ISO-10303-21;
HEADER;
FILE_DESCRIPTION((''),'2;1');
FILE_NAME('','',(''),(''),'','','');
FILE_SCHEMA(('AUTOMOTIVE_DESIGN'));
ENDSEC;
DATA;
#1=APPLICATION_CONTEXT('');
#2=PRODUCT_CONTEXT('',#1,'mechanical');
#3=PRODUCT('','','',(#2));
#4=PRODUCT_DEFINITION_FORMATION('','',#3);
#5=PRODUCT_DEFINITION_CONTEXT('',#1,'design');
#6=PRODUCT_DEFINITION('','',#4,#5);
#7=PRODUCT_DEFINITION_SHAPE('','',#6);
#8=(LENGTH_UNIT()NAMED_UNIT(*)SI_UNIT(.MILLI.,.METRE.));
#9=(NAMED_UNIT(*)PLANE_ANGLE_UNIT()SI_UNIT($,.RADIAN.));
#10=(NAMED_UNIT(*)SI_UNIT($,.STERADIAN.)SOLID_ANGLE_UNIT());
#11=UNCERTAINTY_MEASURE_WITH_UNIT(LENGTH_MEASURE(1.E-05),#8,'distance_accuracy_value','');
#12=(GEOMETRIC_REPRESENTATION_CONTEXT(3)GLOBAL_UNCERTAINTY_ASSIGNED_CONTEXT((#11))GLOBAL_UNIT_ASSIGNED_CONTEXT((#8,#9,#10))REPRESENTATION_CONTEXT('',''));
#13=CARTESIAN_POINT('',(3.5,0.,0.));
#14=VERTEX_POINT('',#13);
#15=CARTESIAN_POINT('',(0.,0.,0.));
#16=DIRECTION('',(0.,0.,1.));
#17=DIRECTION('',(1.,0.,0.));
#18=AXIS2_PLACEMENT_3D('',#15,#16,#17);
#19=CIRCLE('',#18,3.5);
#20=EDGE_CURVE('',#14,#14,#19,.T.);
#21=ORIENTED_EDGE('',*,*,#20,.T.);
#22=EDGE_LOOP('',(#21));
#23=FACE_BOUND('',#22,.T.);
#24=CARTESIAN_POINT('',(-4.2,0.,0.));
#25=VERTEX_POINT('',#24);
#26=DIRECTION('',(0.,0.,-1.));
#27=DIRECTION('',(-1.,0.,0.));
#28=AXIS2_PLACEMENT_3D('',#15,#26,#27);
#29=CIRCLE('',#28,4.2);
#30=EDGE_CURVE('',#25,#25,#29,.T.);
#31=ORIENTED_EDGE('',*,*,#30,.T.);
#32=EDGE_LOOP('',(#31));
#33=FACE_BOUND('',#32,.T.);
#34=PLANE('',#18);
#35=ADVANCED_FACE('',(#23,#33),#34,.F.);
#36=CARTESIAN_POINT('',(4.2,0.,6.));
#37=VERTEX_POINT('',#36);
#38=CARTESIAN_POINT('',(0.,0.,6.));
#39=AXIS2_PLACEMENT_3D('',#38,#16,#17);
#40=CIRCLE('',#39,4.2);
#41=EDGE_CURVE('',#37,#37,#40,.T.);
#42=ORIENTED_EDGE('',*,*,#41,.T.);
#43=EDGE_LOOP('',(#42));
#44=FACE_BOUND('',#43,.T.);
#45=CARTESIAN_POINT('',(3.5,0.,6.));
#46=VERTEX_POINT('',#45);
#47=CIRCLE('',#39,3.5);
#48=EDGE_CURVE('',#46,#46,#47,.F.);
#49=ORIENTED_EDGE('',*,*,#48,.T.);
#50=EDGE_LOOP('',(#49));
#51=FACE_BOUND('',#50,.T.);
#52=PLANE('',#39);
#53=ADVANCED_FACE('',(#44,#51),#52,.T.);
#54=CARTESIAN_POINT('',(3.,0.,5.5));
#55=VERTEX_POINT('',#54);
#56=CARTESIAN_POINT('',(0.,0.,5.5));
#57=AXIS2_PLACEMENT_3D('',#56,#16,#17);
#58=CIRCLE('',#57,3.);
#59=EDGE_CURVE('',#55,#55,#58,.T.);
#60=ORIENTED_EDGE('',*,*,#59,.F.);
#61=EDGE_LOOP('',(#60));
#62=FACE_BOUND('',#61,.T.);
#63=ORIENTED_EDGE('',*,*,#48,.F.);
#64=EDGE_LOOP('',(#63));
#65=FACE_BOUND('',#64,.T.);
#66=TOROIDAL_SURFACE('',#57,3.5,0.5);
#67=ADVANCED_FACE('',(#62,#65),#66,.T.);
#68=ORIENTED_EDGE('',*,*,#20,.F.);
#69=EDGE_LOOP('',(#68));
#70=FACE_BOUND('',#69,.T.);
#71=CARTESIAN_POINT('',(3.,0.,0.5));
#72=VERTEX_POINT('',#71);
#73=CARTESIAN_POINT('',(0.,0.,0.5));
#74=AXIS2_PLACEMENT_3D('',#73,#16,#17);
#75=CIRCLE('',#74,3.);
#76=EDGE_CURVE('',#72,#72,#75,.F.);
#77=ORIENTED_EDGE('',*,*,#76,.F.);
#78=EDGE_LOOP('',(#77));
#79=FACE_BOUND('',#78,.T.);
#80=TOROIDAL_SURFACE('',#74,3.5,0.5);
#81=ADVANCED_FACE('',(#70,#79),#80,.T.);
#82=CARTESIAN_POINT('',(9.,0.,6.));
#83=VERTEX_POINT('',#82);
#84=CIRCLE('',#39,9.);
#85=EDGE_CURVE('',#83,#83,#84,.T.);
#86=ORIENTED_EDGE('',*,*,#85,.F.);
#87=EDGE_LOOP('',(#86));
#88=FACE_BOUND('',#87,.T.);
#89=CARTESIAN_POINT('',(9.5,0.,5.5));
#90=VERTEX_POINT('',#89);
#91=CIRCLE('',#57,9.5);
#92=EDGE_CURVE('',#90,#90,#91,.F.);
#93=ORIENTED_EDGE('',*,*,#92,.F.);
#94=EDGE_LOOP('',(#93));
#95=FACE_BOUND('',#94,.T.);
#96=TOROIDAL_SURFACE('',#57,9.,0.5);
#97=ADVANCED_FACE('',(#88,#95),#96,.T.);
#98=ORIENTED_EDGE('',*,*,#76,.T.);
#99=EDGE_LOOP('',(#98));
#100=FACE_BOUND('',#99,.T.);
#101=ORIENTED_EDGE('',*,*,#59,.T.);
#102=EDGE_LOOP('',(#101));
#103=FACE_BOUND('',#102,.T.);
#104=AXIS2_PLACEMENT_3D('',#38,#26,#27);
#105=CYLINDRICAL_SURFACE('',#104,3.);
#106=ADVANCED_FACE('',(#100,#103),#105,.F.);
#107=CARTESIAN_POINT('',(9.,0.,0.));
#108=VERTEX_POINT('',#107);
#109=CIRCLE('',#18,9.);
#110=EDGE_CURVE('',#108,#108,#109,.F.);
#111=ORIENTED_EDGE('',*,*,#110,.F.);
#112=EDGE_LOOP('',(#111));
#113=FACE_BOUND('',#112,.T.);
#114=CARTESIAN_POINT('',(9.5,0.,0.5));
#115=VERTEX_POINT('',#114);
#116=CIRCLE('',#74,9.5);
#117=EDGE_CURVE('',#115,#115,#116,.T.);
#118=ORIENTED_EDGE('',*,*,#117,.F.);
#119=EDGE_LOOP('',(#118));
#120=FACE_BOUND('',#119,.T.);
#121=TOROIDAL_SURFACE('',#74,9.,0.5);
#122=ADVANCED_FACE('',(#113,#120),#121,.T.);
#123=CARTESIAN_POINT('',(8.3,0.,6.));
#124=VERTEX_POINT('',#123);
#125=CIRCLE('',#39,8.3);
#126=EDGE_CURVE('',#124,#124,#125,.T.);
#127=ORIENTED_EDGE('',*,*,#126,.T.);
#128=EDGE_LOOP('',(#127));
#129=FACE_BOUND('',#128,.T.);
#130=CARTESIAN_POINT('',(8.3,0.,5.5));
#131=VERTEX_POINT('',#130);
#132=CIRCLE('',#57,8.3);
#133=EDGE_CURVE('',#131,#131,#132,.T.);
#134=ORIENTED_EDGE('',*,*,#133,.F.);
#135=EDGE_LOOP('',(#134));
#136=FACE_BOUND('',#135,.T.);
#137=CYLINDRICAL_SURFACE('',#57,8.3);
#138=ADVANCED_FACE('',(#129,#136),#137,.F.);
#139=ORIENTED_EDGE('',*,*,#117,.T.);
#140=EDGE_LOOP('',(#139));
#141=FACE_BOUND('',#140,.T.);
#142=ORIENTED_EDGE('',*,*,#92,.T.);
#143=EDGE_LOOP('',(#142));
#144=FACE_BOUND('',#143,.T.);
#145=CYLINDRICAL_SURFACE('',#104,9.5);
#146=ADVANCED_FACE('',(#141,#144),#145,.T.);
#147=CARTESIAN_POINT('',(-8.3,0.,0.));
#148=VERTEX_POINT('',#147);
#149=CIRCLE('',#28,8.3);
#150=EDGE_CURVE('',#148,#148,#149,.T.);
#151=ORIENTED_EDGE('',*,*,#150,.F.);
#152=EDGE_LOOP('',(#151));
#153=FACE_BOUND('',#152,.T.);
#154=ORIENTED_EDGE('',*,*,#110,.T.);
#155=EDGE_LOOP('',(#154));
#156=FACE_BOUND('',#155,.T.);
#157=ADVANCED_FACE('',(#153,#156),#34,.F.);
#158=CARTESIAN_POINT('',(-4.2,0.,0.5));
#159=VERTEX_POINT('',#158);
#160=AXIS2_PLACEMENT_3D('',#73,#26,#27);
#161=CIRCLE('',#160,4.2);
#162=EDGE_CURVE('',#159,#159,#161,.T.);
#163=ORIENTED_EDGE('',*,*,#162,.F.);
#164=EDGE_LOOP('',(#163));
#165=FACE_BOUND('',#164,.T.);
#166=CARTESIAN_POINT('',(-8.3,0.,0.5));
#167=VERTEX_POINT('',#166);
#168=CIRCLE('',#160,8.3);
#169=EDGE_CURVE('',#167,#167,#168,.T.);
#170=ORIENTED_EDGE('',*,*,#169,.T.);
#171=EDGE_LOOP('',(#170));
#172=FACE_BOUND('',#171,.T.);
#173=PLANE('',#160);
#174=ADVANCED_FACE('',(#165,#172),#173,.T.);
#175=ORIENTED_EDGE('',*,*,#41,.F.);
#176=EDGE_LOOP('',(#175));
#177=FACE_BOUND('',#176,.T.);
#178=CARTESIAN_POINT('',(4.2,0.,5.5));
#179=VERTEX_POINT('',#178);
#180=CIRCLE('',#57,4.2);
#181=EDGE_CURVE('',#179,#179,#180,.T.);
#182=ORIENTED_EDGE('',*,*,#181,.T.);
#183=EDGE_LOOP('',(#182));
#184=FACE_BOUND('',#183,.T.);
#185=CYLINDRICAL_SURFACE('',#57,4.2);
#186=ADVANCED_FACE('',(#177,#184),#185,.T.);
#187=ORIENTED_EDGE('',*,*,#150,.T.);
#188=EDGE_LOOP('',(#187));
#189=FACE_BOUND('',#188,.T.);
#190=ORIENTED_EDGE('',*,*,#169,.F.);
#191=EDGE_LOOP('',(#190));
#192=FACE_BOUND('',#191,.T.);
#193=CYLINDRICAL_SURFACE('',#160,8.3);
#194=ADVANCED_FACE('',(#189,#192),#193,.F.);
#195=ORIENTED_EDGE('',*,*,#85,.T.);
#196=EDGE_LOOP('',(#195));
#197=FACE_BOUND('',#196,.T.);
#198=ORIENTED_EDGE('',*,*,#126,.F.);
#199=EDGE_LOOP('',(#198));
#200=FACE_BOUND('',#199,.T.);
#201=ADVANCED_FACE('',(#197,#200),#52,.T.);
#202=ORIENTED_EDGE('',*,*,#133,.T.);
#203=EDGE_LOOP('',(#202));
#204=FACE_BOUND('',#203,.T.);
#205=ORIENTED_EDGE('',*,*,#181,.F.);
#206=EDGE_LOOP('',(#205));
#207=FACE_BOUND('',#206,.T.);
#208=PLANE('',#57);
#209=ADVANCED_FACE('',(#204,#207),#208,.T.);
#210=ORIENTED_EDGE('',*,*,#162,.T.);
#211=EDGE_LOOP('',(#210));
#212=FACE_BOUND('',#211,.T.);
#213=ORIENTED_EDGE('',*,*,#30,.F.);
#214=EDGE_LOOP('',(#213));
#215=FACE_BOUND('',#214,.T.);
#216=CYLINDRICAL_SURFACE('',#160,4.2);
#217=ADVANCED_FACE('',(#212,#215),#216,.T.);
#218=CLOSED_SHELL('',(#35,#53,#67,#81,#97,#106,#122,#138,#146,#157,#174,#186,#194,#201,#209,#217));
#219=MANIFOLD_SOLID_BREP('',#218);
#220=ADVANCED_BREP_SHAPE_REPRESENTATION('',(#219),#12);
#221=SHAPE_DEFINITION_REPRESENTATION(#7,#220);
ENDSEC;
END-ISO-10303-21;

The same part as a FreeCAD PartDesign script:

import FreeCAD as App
import Part
import Sketcher

V = App.Vector


def edges_at(feature, points):
    """Names of the edges that pass closest to the given points."""
    edges = feature.Shape.Edges
    near = lambda p: min(range(len(edges)), key=lambda i: edges[i].distToShape(Part.Vertex(*p))[0])
    return sorted({f"Edge{near(p) + 1}" for p in points})

doc = App.newDocument("Part")
body = doc.addObject("PartDesign::Body", "Body")

# Sketch on XY plane
sketch1 = body.newObject("Sketcher::SketchObject", "Sketch")
sketch1.AttachmentSupport = (doc.getObject("XY_Plane"), [""])
sketch1.MapMode = "FlatFace"
sketch1.addGeometry([
    Part.Circle(V(0, 0, 0), V(0, 0, 1), 9.5),
    Part.Circle(V(0, 0, 0), V(0, 0, 1), 3),
], False)
sketch1.addConstraint([
    Sketcher.Constraint("Coincident", 0, 3, -1, 1),
    Sketcher.Constraint("Coincident", 1, 3, -1, 1),
    Sketcher.Constraint("Diameter", 0, 19.0),
    Sketcher.Constraint("Diameter", 1, 6.0),
])
pad1 = body.newObject("PartDesign::Pad", "Pad")
pad1.Profile = sketch1
pad1.Length = 6

# Sketch on XY plane
sketch2 = body.newObject("Sketcher::SketchObject", "Sketch001")
sketch2.AttachmentSupport = (doc.getObject("XY_Plane"), [""])
sketch2.MapMode = "FlatFace"
sketch2.AttachmentOffset = App.Placement(V(0, 0, 6), App.Rotation())
sketch2.addGeometry([
    Part.Circle(V(0, 0, 0), V(0, 0, 1), 8.3),
    Part.Circle(V(0, 0, 0), V(0, 0, 1), 4.2),
], False)
sketch2.addConstraint([
    Sketcher.Constraint("Coincident", 0, 3, -1, 1),
    Sketcher.Constraint("Coincident", 1, 3, -1, 1),
    Sketcher.Constraint("Diameter", 0, 16.6),
    Sketcher.Constraint("Diameter", 1, 8.4),
])
pocket1 = body.newObject("PartDesign::Pocket", "Pocket")
pocket1.Profile = sketch2
pocket1.Length = 0.5

# Sketch on XY plane
sketch3 = body.newObject("Sketcher::SketchObject", "Sketch002")
sketch3.AttachmentSupport = (doc.getObject("XY_Plane"), [""])
sketch3.MapMode = "FlatFace"
sketch3.AttachmentOffset = App.Placement(V(0, 0, 0.5), App.Rotation())
sketch3.addGeometry([
    Part.Circle(V(0, 0, 0), V(0, 0, 1), 8.3),
    Part.Circle(V(0, 0, 0), V(0, 0, 1), 4.2),
], False)
sketch3.addConstraint([
    Sketcher.Constraint("Coincident", 0, 3, -1, 1),
    Sketcher.Constraint("Coincident", 1, 3, -1, 1),
    Sketcher.Constraint("Diameter", 0, 16.6),
    Sketcher.Constraint("Diameter", 1, 8.4),
])
pocket2 = body.newObject("PartDesign::Pocket", "Pocket001")
pocket2.Profile = sketch3
pocket2.Length = 0.5
doc.recompute()

fillet = body.newObject("PartDesign::Fillet", "Fillet")
fillet.Base = (pocket2, edges_at(pocket2, [
    (-9.5, 0, 0),
    (-9.5, 0, 6),
    (-3, 0, 0),
    (-3, 0, 6),
]))
fillet.Radius = 0.5

doc.recompute()
